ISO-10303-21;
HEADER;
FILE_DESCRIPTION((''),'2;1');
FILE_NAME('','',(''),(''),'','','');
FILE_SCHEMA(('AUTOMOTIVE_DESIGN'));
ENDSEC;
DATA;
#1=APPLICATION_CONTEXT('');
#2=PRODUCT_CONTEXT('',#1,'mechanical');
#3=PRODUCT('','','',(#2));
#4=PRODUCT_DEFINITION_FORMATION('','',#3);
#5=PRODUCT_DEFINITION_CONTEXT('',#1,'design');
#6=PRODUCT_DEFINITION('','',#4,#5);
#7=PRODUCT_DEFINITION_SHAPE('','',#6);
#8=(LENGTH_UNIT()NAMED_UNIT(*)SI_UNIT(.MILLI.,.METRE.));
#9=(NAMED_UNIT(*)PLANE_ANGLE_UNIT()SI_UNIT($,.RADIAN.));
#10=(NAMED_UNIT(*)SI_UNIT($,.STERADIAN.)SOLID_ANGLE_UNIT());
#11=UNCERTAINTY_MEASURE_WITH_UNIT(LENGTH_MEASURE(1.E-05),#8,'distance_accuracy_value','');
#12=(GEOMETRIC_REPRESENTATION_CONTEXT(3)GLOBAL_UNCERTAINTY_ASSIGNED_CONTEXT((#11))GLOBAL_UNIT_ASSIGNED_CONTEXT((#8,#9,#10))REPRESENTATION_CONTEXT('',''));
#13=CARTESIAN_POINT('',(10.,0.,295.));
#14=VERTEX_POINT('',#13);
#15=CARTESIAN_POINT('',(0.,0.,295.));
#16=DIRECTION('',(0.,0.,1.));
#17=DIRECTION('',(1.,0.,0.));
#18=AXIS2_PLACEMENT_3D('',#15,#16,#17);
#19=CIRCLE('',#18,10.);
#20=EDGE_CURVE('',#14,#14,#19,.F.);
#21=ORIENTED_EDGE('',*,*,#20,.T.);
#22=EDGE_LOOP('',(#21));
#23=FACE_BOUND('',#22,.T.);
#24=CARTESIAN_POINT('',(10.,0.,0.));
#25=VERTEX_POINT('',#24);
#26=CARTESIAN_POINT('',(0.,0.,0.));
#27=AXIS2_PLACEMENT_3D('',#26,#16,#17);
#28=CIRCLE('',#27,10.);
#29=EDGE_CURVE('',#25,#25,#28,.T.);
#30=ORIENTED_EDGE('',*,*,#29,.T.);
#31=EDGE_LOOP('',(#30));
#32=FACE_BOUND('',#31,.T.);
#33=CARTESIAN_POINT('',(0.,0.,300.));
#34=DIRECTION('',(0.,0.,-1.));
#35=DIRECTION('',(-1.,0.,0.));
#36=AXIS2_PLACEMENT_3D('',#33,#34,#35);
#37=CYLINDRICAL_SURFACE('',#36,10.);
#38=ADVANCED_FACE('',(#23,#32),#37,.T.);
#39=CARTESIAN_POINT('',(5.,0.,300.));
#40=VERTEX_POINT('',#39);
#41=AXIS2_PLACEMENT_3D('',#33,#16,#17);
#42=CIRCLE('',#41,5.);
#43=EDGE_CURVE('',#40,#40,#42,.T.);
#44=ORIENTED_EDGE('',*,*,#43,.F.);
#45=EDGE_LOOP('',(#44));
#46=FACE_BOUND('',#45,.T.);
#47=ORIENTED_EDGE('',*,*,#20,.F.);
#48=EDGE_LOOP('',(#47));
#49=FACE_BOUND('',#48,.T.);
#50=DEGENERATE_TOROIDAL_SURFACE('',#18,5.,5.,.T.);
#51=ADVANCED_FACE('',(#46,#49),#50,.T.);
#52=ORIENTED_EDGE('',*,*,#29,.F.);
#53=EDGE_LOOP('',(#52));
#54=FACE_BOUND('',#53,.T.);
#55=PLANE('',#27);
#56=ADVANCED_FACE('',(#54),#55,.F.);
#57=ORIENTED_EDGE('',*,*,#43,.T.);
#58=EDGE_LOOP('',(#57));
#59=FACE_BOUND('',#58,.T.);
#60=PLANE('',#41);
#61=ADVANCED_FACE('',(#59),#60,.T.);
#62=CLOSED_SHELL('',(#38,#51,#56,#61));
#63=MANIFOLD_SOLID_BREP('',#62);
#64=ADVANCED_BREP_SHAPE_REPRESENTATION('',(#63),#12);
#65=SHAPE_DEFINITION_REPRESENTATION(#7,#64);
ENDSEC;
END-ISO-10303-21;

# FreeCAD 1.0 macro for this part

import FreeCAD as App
import Part
import Sketcher

V = App.Vector
Q = App.Units.Quantity


def edges_at(feature, points):
    """Names of the edges that pass closest to the given points."""
    edges = feature.Shape.Edges
    near = lambda p: min(range(len(edges)), key=lambda i: edges[i].distToShape(Part.Vertex(*p))[0])
    return sorted({f"Edge{near(p) + 1}" for p in points})

doc = App.newDocument("Part")
params = doc.addObject("Spreadsheet::Sheet", "Params")
for row, (alias, value) in enumerate([
    ("sketch1_diameter", "20 mm"),
    ("pad1_length", "300 mm"),
    ("fillet_radius", "5 mm"),
], start=1):
    params.set(f"A{row}", alias)
    params.set(f"B{row}", "=" + value)
    params.setAlias(f"B{row}", alias)

body = doc.addObject("PartDesign::Body", "Body")

sketch1 = body.newObject("Sketcher::SketchObject", "Sketch")
sketch1.AttachmentSupport = (doc.getObject("XY_Plane"), [""])
sketch1.MapMode = "FlatFace"
sketch1.addGeometry(Part.Circle(V(0, 0, 0), V(0, 0, 1), 10), False)
sketch1.addConstraint(Sketcher.Constraint("Coincident", 0, 3, -1, 1))
sketch1.addConstraint(Sketcher.Constraint("Diameter", 0, Q("20 mm")))
sketch1.setExpression("Constraints[1]", "Params.sketch1_diameter")
pad1 = body.newObject("PartDesign::Pad", "Pad")
pad1.Profile = sketch1
pad1.setExpression("Length", "Params.pad1_length")
doc.recompute()

fillet = body.newObject("PartDesign::Fillet", "Fillet")
fillet.Base = (pad1, edges_at(pad1, [(-10, 0, 300)]))
fillet.setExpression("Radius", "Params.fillet_radius")

doc.recompute()
